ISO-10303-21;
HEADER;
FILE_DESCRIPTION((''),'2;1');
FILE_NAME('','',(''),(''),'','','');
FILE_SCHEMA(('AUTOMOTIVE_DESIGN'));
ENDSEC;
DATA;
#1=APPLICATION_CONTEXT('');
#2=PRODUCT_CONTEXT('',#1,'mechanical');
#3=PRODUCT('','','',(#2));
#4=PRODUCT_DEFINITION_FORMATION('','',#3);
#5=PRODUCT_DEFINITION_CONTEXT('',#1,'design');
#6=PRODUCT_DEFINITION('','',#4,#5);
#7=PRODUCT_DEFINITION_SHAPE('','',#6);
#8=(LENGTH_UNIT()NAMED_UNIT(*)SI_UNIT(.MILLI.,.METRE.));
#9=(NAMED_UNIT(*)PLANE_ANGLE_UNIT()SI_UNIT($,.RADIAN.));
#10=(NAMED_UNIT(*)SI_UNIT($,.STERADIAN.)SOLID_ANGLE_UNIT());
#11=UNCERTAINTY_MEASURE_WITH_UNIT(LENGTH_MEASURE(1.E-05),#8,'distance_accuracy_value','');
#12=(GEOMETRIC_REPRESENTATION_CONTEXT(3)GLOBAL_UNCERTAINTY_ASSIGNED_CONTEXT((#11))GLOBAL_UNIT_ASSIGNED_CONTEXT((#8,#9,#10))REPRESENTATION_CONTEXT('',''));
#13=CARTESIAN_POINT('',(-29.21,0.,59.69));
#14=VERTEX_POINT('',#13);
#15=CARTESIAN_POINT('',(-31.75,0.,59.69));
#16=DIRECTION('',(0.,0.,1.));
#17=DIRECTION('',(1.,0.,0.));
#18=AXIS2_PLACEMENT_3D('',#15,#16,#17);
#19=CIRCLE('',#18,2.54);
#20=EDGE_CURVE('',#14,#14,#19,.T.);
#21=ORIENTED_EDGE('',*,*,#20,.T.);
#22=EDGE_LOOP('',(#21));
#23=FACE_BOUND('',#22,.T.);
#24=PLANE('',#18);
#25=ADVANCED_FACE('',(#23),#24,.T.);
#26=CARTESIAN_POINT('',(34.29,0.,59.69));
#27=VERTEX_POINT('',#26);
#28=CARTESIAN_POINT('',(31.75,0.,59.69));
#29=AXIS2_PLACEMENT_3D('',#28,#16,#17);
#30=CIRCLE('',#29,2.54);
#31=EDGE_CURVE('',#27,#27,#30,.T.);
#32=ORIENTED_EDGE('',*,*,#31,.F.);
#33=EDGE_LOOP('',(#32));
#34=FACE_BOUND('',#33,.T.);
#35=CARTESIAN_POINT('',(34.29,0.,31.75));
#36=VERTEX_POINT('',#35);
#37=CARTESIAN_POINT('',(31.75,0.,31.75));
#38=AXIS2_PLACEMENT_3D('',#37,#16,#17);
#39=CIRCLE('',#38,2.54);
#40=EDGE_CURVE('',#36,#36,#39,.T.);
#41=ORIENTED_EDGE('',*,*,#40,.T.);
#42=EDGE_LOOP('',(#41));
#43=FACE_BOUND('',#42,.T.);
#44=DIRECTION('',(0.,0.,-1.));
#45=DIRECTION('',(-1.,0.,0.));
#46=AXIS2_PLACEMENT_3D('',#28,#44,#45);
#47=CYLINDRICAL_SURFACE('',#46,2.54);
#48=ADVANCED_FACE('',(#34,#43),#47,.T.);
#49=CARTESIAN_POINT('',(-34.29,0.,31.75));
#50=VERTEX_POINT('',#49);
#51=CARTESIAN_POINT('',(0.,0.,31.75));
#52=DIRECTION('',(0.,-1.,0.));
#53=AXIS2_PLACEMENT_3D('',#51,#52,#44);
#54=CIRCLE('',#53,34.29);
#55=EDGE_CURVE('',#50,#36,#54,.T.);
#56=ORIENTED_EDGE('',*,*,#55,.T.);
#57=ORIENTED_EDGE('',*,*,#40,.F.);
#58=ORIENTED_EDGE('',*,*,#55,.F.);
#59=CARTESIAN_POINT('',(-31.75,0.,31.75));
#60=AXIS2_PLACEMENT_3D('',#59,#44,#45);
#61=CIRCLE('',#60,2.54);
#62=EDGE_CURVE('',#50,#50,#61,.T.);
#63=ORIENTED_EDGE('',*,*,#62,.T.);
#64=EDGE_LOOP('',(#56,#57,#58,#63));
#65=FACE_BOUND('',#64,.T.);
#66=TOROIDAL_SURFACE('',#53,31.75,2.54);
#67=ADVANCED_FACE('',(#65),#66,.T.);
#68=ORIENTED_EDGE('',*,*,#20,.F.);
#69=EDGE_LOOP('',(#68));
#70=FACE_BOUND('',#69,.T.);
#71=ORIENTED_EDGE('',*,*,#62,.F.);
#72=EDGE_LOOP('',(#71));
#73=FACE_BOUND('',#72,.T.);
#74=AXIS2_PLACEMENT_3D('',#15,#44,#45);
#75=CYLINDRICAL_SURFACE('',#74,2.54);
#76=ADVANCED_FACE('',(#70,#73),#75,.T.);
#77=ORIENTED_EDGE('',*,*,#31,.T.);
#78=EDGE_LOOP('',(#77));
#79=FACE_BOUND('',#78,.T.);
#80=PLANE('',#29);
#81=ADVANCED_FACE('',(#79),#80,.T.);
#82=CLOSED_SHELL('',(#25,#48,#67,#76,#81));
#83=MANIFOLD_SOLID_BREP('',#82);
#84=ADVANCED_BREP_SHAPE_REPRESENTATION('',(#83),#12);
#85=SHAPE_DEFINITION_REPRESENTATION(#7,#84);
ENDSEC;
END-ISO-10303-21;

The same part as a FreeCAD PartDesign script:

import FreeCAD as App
import Part
import Sketcher
from FreeCAD import Vector
Q = App.Units.Quantity

doc = App.newDocument("Part")
body = doc.addObject("PartDesign::Body", "Body")

# Sketch on YZ plane
sketch1 = body.newObject("Sketcher::SketchObject", "Sketch")
sketch1.AttachmentSupport = (doc.getObject("YZ_Plane"), [""])
sketch1.MapMode = "FlatFace"
sketch1.addGeometry(Part.Circle(Vector(0, 0, 0), Vector(0, 0, 1), 2.54), False)
sketch1.addGeometry(Part.LineSegment(Vector(0, 31.75, 0), Vector(10, 31.75, 0)), True)  # axis
sketch1.addConstraint([
    Sketcher.Constraint("Horizontal", 1),
    Sketcher.Constraint("Coincident", 0, 3, -1, 1),
    Sketcher.Constraint("PointOnObject", 1, 1, -2),
    Sketcher.Constraint("Diameter", 0, Q("0.2 in")),
    Sketcher.Constraint("DistanceY", -1, 1, 1, 1, Q("1.25 in")),
    Sketcher.Constraint("DistanceX", 1, 1, 1, 2, Q("10 mm")),
])
revolution = body.newObject("PartDesign::Revolution", "Revolution")
revolution.Profile = sketch1
revolution.ReferenceAxis = (sketch1, ["Axis0"])
revolution.Angle = 90

# Sketch on YZ plane
sketch2 = body.newObject("Sketcher::SketchObject", "Sketch001")
sketch2.AttachmentSupport = (doc.getObject("YZ_Plane"), [""])
sketch2.MapMode = "FlatFace"
sketch2.addGeometry(Part.Circle(Vector(0, 0, 0), Vector(0, 0, 1), 2.54), False)
sketch2.addGeometry(Part.LineSegment(Vector(0, 31.75, 0), Vector(-10, 31.75, 0)), True)  # axis
sketch2.addConstraint([
    Sketcher.Constraint("Horizontal", 1),
    Sketcher.Constraint("Coincident", 0, 3, -1, 1),
    Sketcher.Constraint("PointOnObject", 1, 1, -2),
    Sketcher.Constraint("Diameter", 0, Q("0.2 in")),
    Sketcher.Constraint("DistanceY", -1, 1, 1, 1, Q("1.25 in")),
    Sketcher.Constraint("DistanceX", 1, 2, 1, 1, Q("10 mm")),
])
revolution2 = body.newObject("PartDesign::Revolution", "Revolution001")
revolution2.Profile = sketch2
revolution2.ReferenceAxis = (sketch2, ["Axis0"])
revolution2.Angle = 90

# Sketch on XY plane
sketch3 = body.newObject("Sketcher::SketchObject", "Sketch002")
sketch3.AttachmentSupport = (doc.getObject("XY_Plane"), [""])
sketch3.MapMode = "FlatFace"
sketch3.AttachmentOffset = App.Placement(Vector(0, 0, 1.25 * 25.4), App.Rotation())
sketch3.addGeometry([
    Part.Circle(Vector(-31.75, 0, 0), Vector(0, 0, 1), 2.54),
    Part.Circle(Vector(31.75, 0, 0), Vector(0, 0, 1), 2.54),
], False)
sketch3.addConstraint([
    Sketcher.Constraint("Equal", 0, 1),
    Sketcher.Constraint("Symmetric", 0, 3, 1, 3, -1, 1),
    Sketcher.Constraint("PointOnObject", 0, 3, -1),
    Sketcher.Constraint("Diameter", 0, Q("0.2 in")),
    Sketcher.Constraint("DistanceX", 0, 3, 1, 3, Q("2.5 in")),
])
pad1 = body.newObject("PartDesign::Pad", "Pad")
pad1.Profile = sketch3
pad1.Length = Q("1.1 in")

doc.recompute()
